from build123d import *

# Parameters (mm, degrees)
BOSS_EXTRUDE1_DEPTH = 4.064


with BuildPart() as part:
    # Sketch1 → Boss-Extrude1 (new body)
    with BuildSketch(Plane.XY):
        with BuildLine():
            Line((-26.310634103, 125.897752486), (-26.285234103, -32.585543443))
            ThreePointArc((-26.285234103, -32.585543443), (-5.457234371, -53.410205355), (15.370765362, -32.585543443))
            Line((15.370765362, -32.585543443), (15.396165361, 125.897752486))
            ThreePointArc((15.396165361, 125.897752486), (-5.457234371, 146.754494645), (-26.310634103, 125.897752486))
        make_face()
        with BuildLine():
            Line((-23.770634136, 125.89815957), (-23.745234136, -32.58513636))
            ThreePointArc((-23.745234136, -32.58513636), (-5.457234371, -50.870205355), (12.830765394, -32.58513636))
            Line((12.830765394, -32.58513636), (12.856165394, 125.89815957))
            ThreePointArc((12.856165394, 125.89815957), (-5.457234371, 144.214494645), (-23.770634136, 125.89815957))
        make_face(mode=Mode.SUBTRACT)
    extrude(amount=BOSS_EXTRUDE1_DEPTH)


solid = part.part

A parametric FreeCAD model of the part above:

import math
import FreeCAD as App
import Part
import Sketcher
from FreeCAD import Vector
Q = App.Units.Quantity

doc = App.newDocument("Part")
body = doc.addObject("PartDesign::Body", "Body")

sketch1 = body.newObject("Sketcher::SketchObject", "Sketch")
sketch1.AttachmentSupport = (doc.getObject("XY_Plane"), [""])
sketch1.MapMode = "FlatFace"
sketch1.addGeometry([
    Part.LineSegment(Vector(-26, 126, 0), Vector(-26, -33, 0)),
    Part.ArcOfCircle(Part.Circle(Vector(-5, -33, 0), Vector(0, 0, 1), 21), math.radians(-180), math.radians(0)),
    Part.LineSegment(Vector(15, -33, 0), Vector(15, 126, 0)),
    Part.ArcOfCircle(Part.Circle(Vector(-5, 126, 0), Vector(0, 0, 1), 21), math.radians(0), math.radians(180)),
    Part.LineSegment(Vector(-24, -33, 0), Vector(-24, 126, 0)),
    Part.ArcOfCircle(Part.Circle(Vector(-5, 126, 0), Vector(0, 0, 1), 18), math.radians(0), math.radians(180)),
    Part.LineSegment(Vector(13, 126, 0), Vector(13, -33, 0)),
    Part.ArcOfCircle(Part.Circle(Vector(-5, -33, 0), Vector(0, 0, 1), 18), math.radians(-180), math.radians(0)),
], False)
sketch1.addConstraint([
    Sketcher.Constraint("Tangent", 0, 2, 1, 1),
    Sketcher.Constraint("Tangent", 1, 2, 2, 1),
    Sketcher.Constraint("Tangent", 2, 2, 3, 1),
    Sketcher.Constraint("Tangent", 3, 2, 0, 1),
    Sketcher.Constraint("Tangent", 4, 2, 5, 2),
    Sketcher.Constraint("Tangent", 5, 1, 6, 1),
    Sketcher.Constraint("Tangent", 6, 2, 7, 2),
    Sketcher.Constraint("Tangent", 7, 1, 4, 1),
    Sketcher.Constraint("Coincident", 5, 3, 3, 3),
    Sketcher.Constraint("Coincident", 7, 3, 1, 3),
    Sketcher.Constraint("Parallel", 0, 4),
    Sketcher.Constraint("Horizontal", 0, 2, 1, 2),
    Sketcher.Constraint("Radius", 1, Q("0.82 in")),
    Sketcher.Constraint("Radius", 7, Q("0.72 in")),
    Sketcher.Constraint("Radius", 3, Q("0.821 in")),
    Sketcher.Constraint("Distance", 0, Q("6.2394999 in")),
    Sketcher.Constraint("DistanceY", -1, 1, 4, 2, 125.89816),
    Sketcher.Constraint("DistanceX", 1, 3, -1, 1, 5.457234),
])
pad1 = body.newObject("PartDesign::Pad", "Pad")
pad1.Profile = sketch1
pad1.Length = Q("0.16 in")

doc.recompute()
